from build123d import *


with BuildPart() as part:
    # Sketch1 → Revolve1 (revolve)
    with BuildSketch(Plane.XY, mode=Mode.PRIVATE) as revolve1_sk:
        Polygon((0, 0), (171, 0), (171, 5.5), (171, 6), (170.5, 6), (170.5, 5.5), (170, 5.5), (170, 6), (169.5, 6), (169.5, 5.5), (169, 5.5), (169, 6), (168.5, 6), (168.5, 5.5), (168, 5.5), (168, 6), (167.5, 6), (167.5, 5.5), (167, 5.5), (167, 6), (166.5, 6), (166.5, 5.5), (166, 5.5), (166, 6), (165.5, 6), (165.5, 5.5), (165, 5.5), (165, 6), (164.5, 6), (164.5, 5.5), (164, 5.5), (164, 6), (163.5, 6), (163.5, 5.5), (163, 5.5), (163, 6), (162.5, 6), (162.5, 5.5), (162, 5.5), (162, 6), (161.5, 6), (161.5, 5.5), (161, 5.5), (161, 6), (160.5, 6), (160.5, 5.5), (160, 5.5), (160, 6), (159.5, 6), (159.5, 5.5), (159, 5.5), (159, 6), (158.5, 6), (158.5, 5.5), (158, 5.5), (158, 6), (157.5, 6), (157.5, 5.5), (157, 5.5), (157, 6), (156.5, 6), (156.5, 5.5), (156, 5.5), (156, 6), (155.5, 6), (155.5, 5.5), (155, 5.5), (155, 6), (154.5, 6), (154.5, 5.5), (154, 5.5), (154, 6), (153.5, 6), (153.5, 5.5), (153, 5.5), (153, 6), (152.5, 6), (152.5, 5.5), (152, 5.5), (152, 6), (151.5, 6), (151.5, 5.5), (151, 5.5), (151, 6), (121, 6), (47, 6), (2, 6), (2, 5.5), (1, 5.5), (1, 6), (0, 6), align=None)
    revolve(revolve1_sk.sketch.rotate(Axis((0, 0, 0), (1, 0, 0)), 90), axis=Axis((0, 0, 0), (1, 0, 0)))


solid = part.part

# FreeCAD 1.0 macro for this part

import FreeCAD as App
import Part
import Sketcher
from FreeCAD import Vector


def add_polygon(sketch, points):
    """Adds a closed chain of lines whose ends are joined by coincident constraints."""
    first, n = sketch.GeometryCount, len(points)
    for a, b in zip(points, points[1:] + points[:1]):
        sketch.addGeometry(Part.LineSegment(App.Vector(*a, 0), App.Vector(*b, 0)), False)
    for i in range(n):
        sketch.addConstraint(Sketcher.Constraint("Coincident", first + i, 2, first + (i + 1) % n, 1))

doc = App.newDocument("Part")
body = doc.addObject("PartDesign::Body", "Body")

# Sketch on XY plane
sketch1 = body.newObject("Sketcher::SketchObject", "Sketch")
sketch1.AttachmentSupport = (doc.getObject("XY_Plane"), [""])
sketch1.MapMode = "FlatFace"
add_polygon(sketch1, [(0, 0), (171, 0), (171, 6), (170.5, 6), (170.5, 5.5), (170, 5.5), (170, 6), (169.5, 6), (169.5, 5.5), (169, 5.5), (169, 6), (168.5, 6), (168.5, 5.5), (168, 5.5), (168, 6), (167.5, 6), (167.5, 5.5), (167, 5.5), (167, 6), (166.5, 6), (166.5, 5.5), (166, 5.5), (166, 6), (165.5, 6), (165.5, 5.5), (165, 5.5), (165, 6), (164.5, 6), (164.5, 5.5), (164, 5.5), (164, 6), (163.5, 6), (163.5, 5.5), (163, 5.5), (163, 6), (162.5, 6), (162.5, 5.5), (162, 5.5), (162, 6), (161.5, 6), (161.5, 5.5), (161, 5.5), (161, 6), (160.5, 6), (160.5, 5.5), (160, 5.5), (160, 6), (159.5, 6), (159.5, 5.5), (159, 5.5), (159, 6), (158.5, 6), (158.5, 5.5), (158, 5.5), (158, 6), (157.5, 6), (157.5, 5.5), (157, 5.5), (157, 6), (156.5, 6), (156.5, 5.5), (156, 5.5), (156, 6), (155.5, 6), (155.5, 5.5), (155, 5.5), (155, 6), (154.5, 6), (154.5, 5.5), (154, 5.5), (154, 6), (153.5, 6), (153.5, 5.5), (153, 5.5), (153, 6), (152.5, 6), (152.5, 5.5), (152, 5.5), (152, 6), (151.5, 6), (151.5, 5.5), (151, 5.5), (151, 6), (2, 6), (2, 5.5), (1, 5.5), (1, 6), (0, 6)])  # lines 0-87
sketch1.addConstraint([
    Sketcher.Constraint("Horizontal", 0),
    Sketcher.Constraint("Vertical", 1),
    Sketcher.Constraint("Horizontal", 2),
    Sketcher.Constraint("Vertical", 3),
    Sketcher.Constraint("Horizontal", 4),
    Sketcher.Constraint("Vertical", 5),
    Sketcher.Constraint("Horizontal", 6),
    Sketcher.Constraint("Vertical", 7),
    Sketcher.Constraint("Horizontal", 8),
    Sketcher.Constraint("Vertical", 9),
    Sketcher.Constraint("Horizontal", 10),
    Sketcher.Constraint("Vertical", 11),
    Sketcher.Constraint("Horizontal", 12),
    Sketcher.Constraint("Vertical", 13),
    Sketcher.Constraint("Horizontal", 14),
    Sketcher.Constraint("Vertical", 15),
    Sketcher.Constraint("Horizontal", 16),
    Sketcher.Constraint("Vertical", 17),
    Sketcher.Constraint("Horizontal", 18),
    Sketcher.Constraint("Vertical", 19),
    Sketcher.Constraint("Horizontal", 20),
    Sketcher.Constraint("Vertical", 21),
    Sketcher.Constraint("Horizontal", 22),
    Sketcher.Constraint("Vertical", 23),
    Sketcher.Constraint("Horizontal", 24),
    Sketcher.Constraint("Vertical", 25),
    Sketcher.Constraint("Horizontal", 26),
    Sketcher.Constraint("Vertical", 27),
    Sketcher.Constraint("Horizontal", 28),
    Sketcher.Constraint("Vertical", 29),
    Sketcher.Constraint("Horizontal", 30),
    Sketcher.Constraint("Vertical", 31),
    Sketcher.Constraint("Horizontal", 32),
    Sketcher.Constraint("Vertical", 33),
    Sketcher.Constraint("Horizontal", 34),
    Sketcher.Constraint("Vertical", 35),
    Sketcher.Constraint("Horizontal", 36),
    Sketcher.Constraint("Vertical", 37),
    Sketcher.Constraint("Horizontal", 38),
    Sketcher.Constraint("Vertical", 39),
    Sketcher.Constraint("Horizontal", 40),
    Sketcher.Constraint("Vertical", 41),
    Sketcher.Constraint("Horizontal", 42),
    Sketcher.Constraint("Vertical", 43),
    Sketcher.Constraint("Horizontal", 44),
    Sketcher.Constraint("Vertical", 45),
    Sketcher.Constraint("Horizontal", 46),
    Sketcher.Constraint("Vertical", 47),
    Sketcher.Constraint("Horizontal", 48),
    Sketcher.Constraint("Vertical", 49),
    Sketcher.Constraint("Horizontal", 50),
    Sketcher.Constraint("Vertical", 51),
    Sketcher.Constraint("Horizontal", 52),
    Sketcher.Constraint("Vertical", 53),
    Sketcher.Constraint("Horizontal", 54),
    Sketcher.Constraint("Vertical", 55),
    Sketcher.Constraint("Horizontal", 56),
    Sketcher.Constraint("Vertical", 57),
    Sketcher.Constraint("Horizontal", 58),
    Sketcher.Constraint("Vertical", 59),
    Sketcher.Constraint("Horizontal", 60),
    Sketcher.Constraint("Vertical", 61),
    Sketcher.Constraint("Horizontal", 62),
    Sketcher.Constraint("Vertical", 63),
    Sketcher.Constraint("Horizontal", 64),
    Sketcher.Constraint("Vertical", 65),
    Sketcher.Constraint("Horizontal", 66),
    Sketcher.Constraint("Vertical", 67),
    Sketcher.Constraint("Horizontal", 68),
    Sketcher.Constraint("Vertical", 69),
    Sketcher.Constraint("Horizontal", 70),
    Sketcher.Constraint("Vertical", 71),
    Sketcher.Constraint("Horizontal", 72),
    Sketcher.Constraint("Vertical", 73),
    Sketcher.Constraint("Horizontal", 74),
    Sketcher.Constraint("Vertical", 75),
    Sketcher.Constraint("Horizontal", 76),
    Sketcher.Constraint("Vertical", 77),
    Sketcher.Constraint("Horizontal", 78),
    Sketcher.Constraint("Vertical", 79),
    Sketcher.Constraint("Horizontal", 80),
    Sketcher.Constraint("Vertical", 81),
    Sketcher.Constraint("Horizontal", 82),
    Sketcher.Constraint("Vertical", 83),
    Sketcher.Constraint("Horizontal", 84),
    Sketcher.Constraint("Vertical", 85),
    Sketcher.Constraint("Horizontal", 86),
    Sketcher.Constraint("Vertical", 87),
    Sketcher.Constraint("Coincident", 87, 2, -1, 1),
    Sketcher.Constraint("Horizontal", 2, 2, 5, 2),
    Sketcher.Constraint("Horizontal", 4, 2, 7, 2),
    Sketcher.Constraint("Horizontal", 6, 2, 9, 2),
    Sketcher.Constraint("Horizontal", 8, 2, 11, 2),
    Sketcher.Constraint("Horizontal", 10, 2, 13, 2),
    Sketcher.Constraint("Horizontal", 12, 2, 15, 2),
    Sketcher.Constraint("Horizontal", 14, 2, 17, 2),
    Sketcher.Constraint("Horizontal", 16, 2, 19, 2),
    Sketcher.Constraint("Horizontal", 18, 2, 21, 2),
    Sketcher.Constraint("Horizontal", 20, 2, 23, 2),
    Sketcher.Constraint("Horizontal", 22, 2, 25, 2),
    Sketcher.Constraint("Horizontal", 24, 2, 27, 2),
    Sketcher.Constraint("Horizontal", 26, 2, 29, 2),
    Sketcher.Constraint("Horizontal", 28, 2, 31, 2),
    Sketcher.Constraint("Horizontal", 30, 2, 33, 2),
    Sketcher.Constraint("Horizontal", 32, 2, 35, 2),
    Sketcher.Constraint("Horizontal", 34, 2, 37, 2),
    Sketcher.Constraint("Horizontal", 36, 2, 39, 2),
    Sketcher.Constraint("Horizontal", 38, 2, 41, 2),
    Sketcher.Constraint("Horizontal", 40, 2, 43, 2),
    Sketcher.Constraint("Horizontal", 42, 2, 45, 2),
    Sketcher.Constraint("Horizontal", 44, 2, 47, 2),
    Sketcher.Constraint("Horizontal", 46, 2, 49, 2),
    Sketcher.Constraint("Horizontal", 48, 2, 51, 2),
    Sketcher.Constraint("Horizontal", 50, 2, 53, 2),
    Sketcher.Constraint("Horizontal", 52, 2, 55, 2),
    Sketcher.Constraint("Horizontal", 54, 2, 57, 2),
    Sketcher.Constraint("Horizontal", 56, 2, 59, 2),
    Sketcher.Constraint("Horizontal", 58, 2, 61, 2),
    Sketcher.Constraint("Horizontal", 60, 2, 63, 2),
    Sketcher.Constraint("Horizontal", 62, 2, 65, 2),
    Sketcher.Constraint("Horizontal", 64, 2, 67, 2),
    Sketcher.Constraint("Horizontal", 66, 2, 69, 2),
    Sketcher.Constraint("Horizontal", 68, 2, 71, 2),
    Sketcher.Constraint("Horizontal", 70, 2, 73, 2),
    Sketcher.Constraint("Horizontal", 72, 2, 75, 2),
    Sketcher.Constraint("Horizontal", 74, 2, 77, 2),
    Sketcher.Constraint("Horizontal", 76, 2, 79, 2),
    Sketcher.Constraint("Horizontal", 78, 2, 81, 2),
    Sketcher.Constraint("Horizontal", 80, 2, 83, 2),
    Sketcher.Constraint("Horizontal", 82, 2, 85, 2),
    Sketcher.Constraint("Equal", 2, 4),
    Sketcher.Constraint("Equal", 4, 6),
    Sketcher.Constraint("Equal", 6, 8),
    Sketcher.Constraint("Equal", 8, 10),
    Sketcher.Constraint("Equal", 10, 12),
    Sketcher.Constraint("Equal", 12, 14),
    Sketcher.Constraint("Equal", 14, 16),
    Sketcher.Constraint("Equal", 16, 18),
    Sketcher.Constraint("Equal", 18, 20),
    Sketcher.Constraint("Equal", 20, 22),
    Sketcher.Constraint("Equal", 22, 24),
    Sketcher.Constraint("Equal", 24, 26),
    Sketcher.Constraint("Equal", 26, 28),
    Sketcher.Constraint("Equal", 28, 30),
    Sketcher.Constraint("Equal", 30, 32),
    Sketcher.Constraint("Equal", 32, 34),
    Sketcher.Constraint("Equal", 34, 36),
    Sketcher.Constraint("Equal", 36, 38),
    Sketcher.Constraint("Equal", 38, 40),
    Sketcher.Constraint("Equal", 40, 42),
    Sketcher.Constraint("Equal", 42, 44),
    Sketcher.Constraint("Equal", 44, 46),
    Sketcher.Constraint("Equal", 46, 48),
    Sketcher.Constraint("Equal", 48, 50),
    Sketcher.Constraint("Equal", 50, 52),
    Sketcher.Constraint("Equal", 52, 54),
    Sketcher.Constraint("Equal", 54, 56),
    Sketcher.Constraint("Equal", 56, 58),
    Sketcher.Constraint("Equal", 58, 60),
    Sketcher.Constraint("Equal", 60, 62),
    Sketcher.Constraint("Equal", 62, 64),
    Sketcher.Constraint("Equal", 64, 66),
    Sketcher.Constraint("Equal", 66, 68),
    Sketcher.Constraint("Equal", 68, 70),
    Sketcher.Constraint("Equal", 70, 72),
    Sketcher.Constraint("Equal", 72, 74),
    Sketcher.Constraint("Equal", 74, 76),
    Sketcher.Constraint("Equal", 76, 78),
    Sketcher.Constraint("Equal", 78, 80),
    Sketcher.Constraint("Equal", 84, 86),
    Sketcher.Constraint("Equal", 80, 3),
    Sketcher.Constraint("DistanceX", 0, 1, 0, 2, 171.0),
    Sketcher.Constraint("DistanceX", 82, 2, 82, 1, 149.0),
    Sketcher.Constraint("DistanceX", 84, 2, 84, 1, 1.0),
    Sketcher.Constraint("DistanceY", 1, 1, 1, 2, 6.0),
])
revolution = body.newObject("PartDesign::Revolution", "Revolution")
revolution.Profile = sketch1
revolution.ReferenceAxis = (sketch1, ["H_Axis"])
revolution.Angle = 360

doc.recompute()
